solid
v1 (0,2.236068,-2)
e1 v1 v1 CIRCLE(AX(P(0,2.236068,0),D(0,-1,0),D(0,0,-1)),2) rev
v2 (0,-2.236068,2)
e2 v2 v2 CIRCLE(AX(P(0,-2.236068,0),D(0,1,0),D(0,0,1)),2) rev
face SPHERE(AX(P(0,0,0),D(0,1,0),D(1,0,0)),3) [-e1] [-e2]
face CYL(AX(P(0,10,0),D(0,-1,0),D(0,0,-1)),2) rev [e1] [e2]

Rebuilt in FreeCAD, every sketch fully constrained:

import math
import FreeCAD as App
import Part
import Sketcher

V = App.Vector

doc = App.newDocument("Part")
body = doc.addObject("PartDesign::Body", "Body")

sketch1 = body.newObject("Sketcher::SketchObject", "Sketch")
sketch1.AttachmentSupport = (doc.getObject("XY_Plane"), [""])
sketch1.MapMode = "FlatFace"
sketch1.addGeometry([
    Part.LineSegment(V(0, 3, 0), V(0, -3, 0)),
    Part.ArcOfCircle(Part.Circle(V(0, 0, 0), V(0, 0, 1), 3), math.radians(-90), math.radians(90)),
], False)
sketch1.addConstraint([
    Sketcher.Constraint("Coincident", 0, 1, 1, 2),
    Sketcher.Constraint("Coincident", 1, 1, 0, 2),
    Sketcher.Constraint("Vertical", 0),
    Sketcher.Constraint("Coincident", 1, 3, -1, 1),
    Sketcher.Constraint("PointOnObject", 0, 1, -2),
    Sketcher.Constraint("Radius", 1, 3.0),
])
revolution = body.newObject("PartDesign::Revolution", "Revolution")
revolution.Profile = sketch1
revolution.ReferenceAxis = (sketch1, ["V_Axis"])
revolution.Angle = 360

sketch2 = body.newObject("Sketcher::SketchObject", "Sketch001")
sketch2.AttachmentSupport = (doc.getObject("XZ_Plane"), [""])
sketch2.MapMode = "FlatFace"
sketch2.addGeometry(Part.Circle(V(0, 0, 0), V(0, 0, 1), 2), False)
sketch2.addConstraint([
    Sketcher.Constraint("Coincident", 0, 3, -1, 1),
    Sketcher.Constraint("Diameter", 0, 4.0),
])
pocket1 = body.newObject("PartDesign::Pocket", "Pocket")
pocket1.Profile = sketch2
pocket1.Type = "ThroughAll"
pocket1.Midplane = True

doc.recompute()
